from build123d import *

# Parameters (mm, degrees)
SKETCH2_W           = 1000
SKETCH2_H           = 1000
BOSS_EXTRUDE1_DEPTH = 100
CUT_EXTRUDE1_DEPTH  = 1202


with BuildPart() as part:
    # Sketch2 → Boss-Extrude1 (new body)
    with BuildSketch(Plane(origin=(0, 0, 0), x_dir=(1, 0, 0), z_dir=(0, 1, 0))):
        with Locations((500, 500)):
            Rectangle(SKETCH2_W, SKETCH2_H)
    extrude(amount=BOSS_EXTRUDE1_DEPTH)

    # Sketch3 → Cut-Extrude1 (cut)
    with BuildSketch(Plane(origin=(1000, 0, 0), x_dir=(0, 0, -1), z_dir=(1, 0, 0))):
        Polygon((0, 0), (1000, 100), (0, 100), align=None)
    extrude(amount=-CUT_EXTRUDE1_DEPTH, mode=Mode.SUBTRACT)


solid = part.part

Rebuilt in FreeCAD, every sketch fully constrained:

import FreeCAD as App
import Part
import Sketcher
from FreeCAD import Vector

doc = App.newDocument("Part")
params = doc.addObject("Spreadsheet::Sheet", "Params")
for row, (alias, value) in enumerate([
    ("sketch1_width", "1000 mm"),
    ("pad1_length", "100 mm"),
    ("sketch2_width", "100 mm"),
    ("sketch2_height", "1000 mm"),
    ("pocket1_length", "1202 mm"),
], start=1):
    params.set(f"A{row}", alias)
    params.set(f"B{row}", "=" + value)
    params.setAlias(f"B{row}", alias)

body = doc.addObject("PartDesign::Body", "Body")

sketch1 = body.newObject("Sketcher::SketchObject", "Sketch")
sketch1.AttachmentSupport = (doc.getObject("XZ_Plane"), [""])
sketch1.MapMode = "FlatFace"
sketch1.addGeometry([
    Part.LineSegment(Vector(0, -1000, 0), Vector(0, 0, 0)),
    Part.LineSegment(Vector(0, 0, 0), Vector(1000, 0, 0)),
    Part.LineSegment(Vector(1000, 0, 0), Vector(1000, -1000, 0)),
    Part.LineSegment(Vector(1000, -1000, 0), Vector(0, -1000, 0)),
], False)
sketch1.addConstraint([
    Sketcher.Constraint("Coincident", 0, 2, 1, 1),
    Sketcher.Constraint("Coincident", 1, 2, 2, 1),
    Sketcher.Constraint("Coincident", 2, 2, 3, 1),
    Sketcher.Constraint("Coincident", 3, 2, 0, 1),
    Sketcher.Constraint("Vertical", 0),
    Sketcher.Constraint("Horizontal", 1),
    Sketcher.Constraint("Vertical", 2),
    Sketcher.Constraint("Horizontal", 3),
    Sketcher.Constraint("Coincident", 0, 2, -1, 1),
    Sketcher.Constraint("Equal", 3, 0),
    Sketcher.Constraint("DistanceX", 1, 1, 1, 2, 1000.0),
])
sketch1.setExpression("Constraints[10]", "Params.sketch1_width")
pad1 = body.newObject("PartDesign::Pad", "Pad")
pad1.Profile = sketch1
pad1.setExpression("Length", "Params.pad1_length")
pad1.Reversed = True

sketch2 = body.newObject("Sketcher::SketchObject", "Sketch001")
sketch2.AttachmentSupport = (doc.getObject("YZ_Plane"), [""])
sketch2.MapMode = "FlatFace"
sketch2.AttachmentOffset = App.Placement(Vector(0, 0, 1000), App.Rotation())
sketch2.addGeometry([
    Part.LineSegment(Vector(0, 0, 0), Vector(100, -1000, 0)),
    Part.LineSegment(Vector(100, -1000, 0), Vector(100, 0, 0)),
    Part.LineSegment(Vector(100, 0, 0), Vector(0, 0, 0)),
], False)
sketch2.addConstraint([
    Sketcher.Constraint("Coincident", 0, 2, 1, 1),
    Sketcher.Constraint("Coincident", 1, 2, 2, 1),
    Sketcher.Constraint("Coincident", 2, 2, 0, 1),
    Sketcher.Constraint("Vertical", 1),
    Sketcher.Constraint("Horizontal", 2),
    Sketcher.Constraint("Coincident", 2, 2, -1, 1),
    Sketcher.Constraint("DistanceX", 2, 2, 2, 1, 100.0),
    Sketcher.Constraint("DistanceY", 1, 1, 1, 2, 1000.0),
])
sketch2.setExpression("Constraints[6]", "Params.sketch2_width")
sketch2.setExpression("Constraints[7]", "Params.sketch2_height")
pocket1 = body.newObject("PartDesign::Pocket", "Pocket")
pocket1.Profile = sketch2
pocket1.setExpression("Length", "Params.pocket1_length")

doc.recompute()
